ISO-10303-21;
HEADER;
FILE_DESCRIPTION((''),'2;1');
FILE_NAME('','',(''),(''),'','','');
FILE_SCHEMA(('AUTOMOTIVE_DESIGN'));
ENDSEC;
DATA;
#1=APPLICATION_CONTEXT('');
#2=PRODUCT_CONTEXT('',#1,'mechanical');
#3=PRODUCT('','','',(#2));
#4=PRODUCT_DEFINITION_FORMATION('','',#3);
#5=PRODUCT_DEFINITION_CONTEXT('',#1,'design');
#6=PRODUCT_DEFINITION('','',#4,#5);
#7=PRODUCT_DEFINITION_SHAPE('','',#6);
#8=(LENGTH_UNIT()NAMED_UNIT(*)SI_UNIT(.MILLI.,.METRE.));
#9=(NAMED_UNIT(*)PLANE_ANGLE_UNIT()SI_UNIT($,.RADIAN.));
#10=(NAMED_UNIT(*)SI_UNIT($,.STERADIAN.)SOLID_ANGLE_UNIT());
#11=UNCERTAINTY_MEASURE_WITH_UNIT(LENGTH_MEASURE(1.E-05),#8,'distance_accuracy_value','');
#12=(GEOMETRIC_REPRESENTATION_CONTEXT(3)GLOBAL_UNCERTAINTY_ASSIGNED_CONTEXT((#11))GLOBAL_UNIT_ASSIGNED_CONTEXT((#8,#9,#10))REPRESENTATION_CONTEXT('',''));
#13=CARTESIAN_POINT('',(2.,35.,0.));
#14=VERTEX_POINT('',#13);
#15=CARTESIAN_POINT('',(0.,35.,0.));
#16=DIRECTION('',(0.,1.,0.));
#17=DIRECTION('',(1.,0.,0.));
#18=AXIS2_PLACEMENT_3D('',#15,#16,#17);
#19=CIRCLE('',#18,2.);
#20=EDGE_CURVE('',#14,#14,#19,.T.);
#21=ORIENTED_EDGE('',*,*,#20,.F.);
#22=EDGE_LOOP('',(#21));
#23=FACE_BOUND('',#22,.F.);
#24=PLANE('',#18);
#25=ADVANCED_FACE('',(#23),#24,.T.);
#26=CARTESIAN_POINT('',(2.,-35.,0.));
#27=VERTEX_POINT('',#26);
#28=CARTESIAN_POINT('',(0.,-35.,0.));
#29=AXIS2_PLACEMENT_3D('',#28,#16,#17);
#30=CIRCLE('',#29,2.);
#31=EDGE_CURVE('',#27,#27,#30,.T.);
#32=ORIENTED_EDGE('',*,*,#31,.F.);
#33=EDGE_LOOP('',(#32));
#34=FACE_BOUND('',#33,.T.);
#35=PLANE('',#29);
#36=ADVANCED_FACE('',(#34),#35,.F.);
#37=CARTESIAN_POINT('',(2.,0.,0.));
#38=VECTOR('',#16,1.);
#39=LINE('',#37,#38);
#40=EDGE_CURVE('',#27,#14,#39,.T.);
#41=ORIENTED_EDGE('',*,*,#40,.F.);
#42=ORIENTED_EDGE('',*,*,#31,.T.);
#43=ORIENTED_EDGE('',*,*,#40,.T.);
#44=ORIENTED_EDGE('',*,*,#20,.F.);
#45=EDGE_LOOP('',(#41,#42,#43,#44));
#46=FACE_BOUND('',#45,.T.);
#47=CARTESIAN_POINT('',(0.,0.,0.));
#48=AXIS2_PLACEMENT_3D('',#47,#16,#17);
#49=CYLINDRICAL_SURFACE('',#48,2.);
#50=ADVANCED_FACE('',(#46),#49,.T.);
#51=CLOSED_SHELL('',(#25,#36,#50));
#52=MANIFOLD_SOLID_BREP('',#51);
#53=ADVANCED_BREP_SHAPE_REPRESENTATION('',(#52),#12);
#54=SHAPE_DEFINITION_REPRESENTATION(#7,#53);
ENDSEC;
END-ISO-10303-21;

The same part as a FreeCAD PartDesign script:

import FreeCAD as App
import Part
import Sketcher
Q = App.Units.Quantity

doc = App.newDocument("Part")
body = doc.addObject("PartDesign::Body", "Body")

# Sketch on XY plane
sketch1 = doc.addObject("Sketcher::SketchObject", "Sketch")
body.addObject(sketch1)
sketch1.AttachmentSupport = (doc.XY_Plane, [""])
sketch1.MapMode = "FlatFace"
sketch1.addGeometry([
    Part.LineSegment(App.Vector(0, 35, 0), App.Vector(0, -35, 0)),
    Part.LineSegment(App.Vector(0, -35, 0), App.Vector(2, -35, 0)),
    Part.LineSegment(App.Vector(2, -35, 0), App.Vector(2, 35, 0)),
    Part.LineSegment(App.Vector(2, 35, 0), App.Vector(0, 35, 0)),
], False)
sketch1.addConstraint([
    Sketcher.Constraint("Coincident", 0, 2, 1, 1),
    Sketcher.Constraint("Coincident", 1, 2, 2, 1),
    Sketcher.Constraint("Coincident", 2, 2, 3, 1),
    Sketcher.Constraint("Coincident", 3, 2, 0, 1),
    Sketcher.Constraint("Vertical", 0),
    Sketcher.Constraint("Horizontal", 1),
    Sketcher.Constraint("Vertical", 2),
    Sketcher.Constraint("Horizontal", 3),
    Sketcher.Constraint("Symmetric", 0, 2, 3, 2, -1, 1),
    Sketcher.Constraint("DistanceX", 1, 1, 1, 2, Q("2 mm")),
    Sketcher.Constraint("DistanceY", 0, 2, 0, 1, Q("70 mm")),
])
revolution = doc.addObject("PartDesign::Revolution", "Revolution")
body.addObject(revolution)
revolution.Profile = sketch1
revolution.ReferenceAxis = (sketch1, ["V_Axis"])
revolution.Angle = 360

doc.recompute()
